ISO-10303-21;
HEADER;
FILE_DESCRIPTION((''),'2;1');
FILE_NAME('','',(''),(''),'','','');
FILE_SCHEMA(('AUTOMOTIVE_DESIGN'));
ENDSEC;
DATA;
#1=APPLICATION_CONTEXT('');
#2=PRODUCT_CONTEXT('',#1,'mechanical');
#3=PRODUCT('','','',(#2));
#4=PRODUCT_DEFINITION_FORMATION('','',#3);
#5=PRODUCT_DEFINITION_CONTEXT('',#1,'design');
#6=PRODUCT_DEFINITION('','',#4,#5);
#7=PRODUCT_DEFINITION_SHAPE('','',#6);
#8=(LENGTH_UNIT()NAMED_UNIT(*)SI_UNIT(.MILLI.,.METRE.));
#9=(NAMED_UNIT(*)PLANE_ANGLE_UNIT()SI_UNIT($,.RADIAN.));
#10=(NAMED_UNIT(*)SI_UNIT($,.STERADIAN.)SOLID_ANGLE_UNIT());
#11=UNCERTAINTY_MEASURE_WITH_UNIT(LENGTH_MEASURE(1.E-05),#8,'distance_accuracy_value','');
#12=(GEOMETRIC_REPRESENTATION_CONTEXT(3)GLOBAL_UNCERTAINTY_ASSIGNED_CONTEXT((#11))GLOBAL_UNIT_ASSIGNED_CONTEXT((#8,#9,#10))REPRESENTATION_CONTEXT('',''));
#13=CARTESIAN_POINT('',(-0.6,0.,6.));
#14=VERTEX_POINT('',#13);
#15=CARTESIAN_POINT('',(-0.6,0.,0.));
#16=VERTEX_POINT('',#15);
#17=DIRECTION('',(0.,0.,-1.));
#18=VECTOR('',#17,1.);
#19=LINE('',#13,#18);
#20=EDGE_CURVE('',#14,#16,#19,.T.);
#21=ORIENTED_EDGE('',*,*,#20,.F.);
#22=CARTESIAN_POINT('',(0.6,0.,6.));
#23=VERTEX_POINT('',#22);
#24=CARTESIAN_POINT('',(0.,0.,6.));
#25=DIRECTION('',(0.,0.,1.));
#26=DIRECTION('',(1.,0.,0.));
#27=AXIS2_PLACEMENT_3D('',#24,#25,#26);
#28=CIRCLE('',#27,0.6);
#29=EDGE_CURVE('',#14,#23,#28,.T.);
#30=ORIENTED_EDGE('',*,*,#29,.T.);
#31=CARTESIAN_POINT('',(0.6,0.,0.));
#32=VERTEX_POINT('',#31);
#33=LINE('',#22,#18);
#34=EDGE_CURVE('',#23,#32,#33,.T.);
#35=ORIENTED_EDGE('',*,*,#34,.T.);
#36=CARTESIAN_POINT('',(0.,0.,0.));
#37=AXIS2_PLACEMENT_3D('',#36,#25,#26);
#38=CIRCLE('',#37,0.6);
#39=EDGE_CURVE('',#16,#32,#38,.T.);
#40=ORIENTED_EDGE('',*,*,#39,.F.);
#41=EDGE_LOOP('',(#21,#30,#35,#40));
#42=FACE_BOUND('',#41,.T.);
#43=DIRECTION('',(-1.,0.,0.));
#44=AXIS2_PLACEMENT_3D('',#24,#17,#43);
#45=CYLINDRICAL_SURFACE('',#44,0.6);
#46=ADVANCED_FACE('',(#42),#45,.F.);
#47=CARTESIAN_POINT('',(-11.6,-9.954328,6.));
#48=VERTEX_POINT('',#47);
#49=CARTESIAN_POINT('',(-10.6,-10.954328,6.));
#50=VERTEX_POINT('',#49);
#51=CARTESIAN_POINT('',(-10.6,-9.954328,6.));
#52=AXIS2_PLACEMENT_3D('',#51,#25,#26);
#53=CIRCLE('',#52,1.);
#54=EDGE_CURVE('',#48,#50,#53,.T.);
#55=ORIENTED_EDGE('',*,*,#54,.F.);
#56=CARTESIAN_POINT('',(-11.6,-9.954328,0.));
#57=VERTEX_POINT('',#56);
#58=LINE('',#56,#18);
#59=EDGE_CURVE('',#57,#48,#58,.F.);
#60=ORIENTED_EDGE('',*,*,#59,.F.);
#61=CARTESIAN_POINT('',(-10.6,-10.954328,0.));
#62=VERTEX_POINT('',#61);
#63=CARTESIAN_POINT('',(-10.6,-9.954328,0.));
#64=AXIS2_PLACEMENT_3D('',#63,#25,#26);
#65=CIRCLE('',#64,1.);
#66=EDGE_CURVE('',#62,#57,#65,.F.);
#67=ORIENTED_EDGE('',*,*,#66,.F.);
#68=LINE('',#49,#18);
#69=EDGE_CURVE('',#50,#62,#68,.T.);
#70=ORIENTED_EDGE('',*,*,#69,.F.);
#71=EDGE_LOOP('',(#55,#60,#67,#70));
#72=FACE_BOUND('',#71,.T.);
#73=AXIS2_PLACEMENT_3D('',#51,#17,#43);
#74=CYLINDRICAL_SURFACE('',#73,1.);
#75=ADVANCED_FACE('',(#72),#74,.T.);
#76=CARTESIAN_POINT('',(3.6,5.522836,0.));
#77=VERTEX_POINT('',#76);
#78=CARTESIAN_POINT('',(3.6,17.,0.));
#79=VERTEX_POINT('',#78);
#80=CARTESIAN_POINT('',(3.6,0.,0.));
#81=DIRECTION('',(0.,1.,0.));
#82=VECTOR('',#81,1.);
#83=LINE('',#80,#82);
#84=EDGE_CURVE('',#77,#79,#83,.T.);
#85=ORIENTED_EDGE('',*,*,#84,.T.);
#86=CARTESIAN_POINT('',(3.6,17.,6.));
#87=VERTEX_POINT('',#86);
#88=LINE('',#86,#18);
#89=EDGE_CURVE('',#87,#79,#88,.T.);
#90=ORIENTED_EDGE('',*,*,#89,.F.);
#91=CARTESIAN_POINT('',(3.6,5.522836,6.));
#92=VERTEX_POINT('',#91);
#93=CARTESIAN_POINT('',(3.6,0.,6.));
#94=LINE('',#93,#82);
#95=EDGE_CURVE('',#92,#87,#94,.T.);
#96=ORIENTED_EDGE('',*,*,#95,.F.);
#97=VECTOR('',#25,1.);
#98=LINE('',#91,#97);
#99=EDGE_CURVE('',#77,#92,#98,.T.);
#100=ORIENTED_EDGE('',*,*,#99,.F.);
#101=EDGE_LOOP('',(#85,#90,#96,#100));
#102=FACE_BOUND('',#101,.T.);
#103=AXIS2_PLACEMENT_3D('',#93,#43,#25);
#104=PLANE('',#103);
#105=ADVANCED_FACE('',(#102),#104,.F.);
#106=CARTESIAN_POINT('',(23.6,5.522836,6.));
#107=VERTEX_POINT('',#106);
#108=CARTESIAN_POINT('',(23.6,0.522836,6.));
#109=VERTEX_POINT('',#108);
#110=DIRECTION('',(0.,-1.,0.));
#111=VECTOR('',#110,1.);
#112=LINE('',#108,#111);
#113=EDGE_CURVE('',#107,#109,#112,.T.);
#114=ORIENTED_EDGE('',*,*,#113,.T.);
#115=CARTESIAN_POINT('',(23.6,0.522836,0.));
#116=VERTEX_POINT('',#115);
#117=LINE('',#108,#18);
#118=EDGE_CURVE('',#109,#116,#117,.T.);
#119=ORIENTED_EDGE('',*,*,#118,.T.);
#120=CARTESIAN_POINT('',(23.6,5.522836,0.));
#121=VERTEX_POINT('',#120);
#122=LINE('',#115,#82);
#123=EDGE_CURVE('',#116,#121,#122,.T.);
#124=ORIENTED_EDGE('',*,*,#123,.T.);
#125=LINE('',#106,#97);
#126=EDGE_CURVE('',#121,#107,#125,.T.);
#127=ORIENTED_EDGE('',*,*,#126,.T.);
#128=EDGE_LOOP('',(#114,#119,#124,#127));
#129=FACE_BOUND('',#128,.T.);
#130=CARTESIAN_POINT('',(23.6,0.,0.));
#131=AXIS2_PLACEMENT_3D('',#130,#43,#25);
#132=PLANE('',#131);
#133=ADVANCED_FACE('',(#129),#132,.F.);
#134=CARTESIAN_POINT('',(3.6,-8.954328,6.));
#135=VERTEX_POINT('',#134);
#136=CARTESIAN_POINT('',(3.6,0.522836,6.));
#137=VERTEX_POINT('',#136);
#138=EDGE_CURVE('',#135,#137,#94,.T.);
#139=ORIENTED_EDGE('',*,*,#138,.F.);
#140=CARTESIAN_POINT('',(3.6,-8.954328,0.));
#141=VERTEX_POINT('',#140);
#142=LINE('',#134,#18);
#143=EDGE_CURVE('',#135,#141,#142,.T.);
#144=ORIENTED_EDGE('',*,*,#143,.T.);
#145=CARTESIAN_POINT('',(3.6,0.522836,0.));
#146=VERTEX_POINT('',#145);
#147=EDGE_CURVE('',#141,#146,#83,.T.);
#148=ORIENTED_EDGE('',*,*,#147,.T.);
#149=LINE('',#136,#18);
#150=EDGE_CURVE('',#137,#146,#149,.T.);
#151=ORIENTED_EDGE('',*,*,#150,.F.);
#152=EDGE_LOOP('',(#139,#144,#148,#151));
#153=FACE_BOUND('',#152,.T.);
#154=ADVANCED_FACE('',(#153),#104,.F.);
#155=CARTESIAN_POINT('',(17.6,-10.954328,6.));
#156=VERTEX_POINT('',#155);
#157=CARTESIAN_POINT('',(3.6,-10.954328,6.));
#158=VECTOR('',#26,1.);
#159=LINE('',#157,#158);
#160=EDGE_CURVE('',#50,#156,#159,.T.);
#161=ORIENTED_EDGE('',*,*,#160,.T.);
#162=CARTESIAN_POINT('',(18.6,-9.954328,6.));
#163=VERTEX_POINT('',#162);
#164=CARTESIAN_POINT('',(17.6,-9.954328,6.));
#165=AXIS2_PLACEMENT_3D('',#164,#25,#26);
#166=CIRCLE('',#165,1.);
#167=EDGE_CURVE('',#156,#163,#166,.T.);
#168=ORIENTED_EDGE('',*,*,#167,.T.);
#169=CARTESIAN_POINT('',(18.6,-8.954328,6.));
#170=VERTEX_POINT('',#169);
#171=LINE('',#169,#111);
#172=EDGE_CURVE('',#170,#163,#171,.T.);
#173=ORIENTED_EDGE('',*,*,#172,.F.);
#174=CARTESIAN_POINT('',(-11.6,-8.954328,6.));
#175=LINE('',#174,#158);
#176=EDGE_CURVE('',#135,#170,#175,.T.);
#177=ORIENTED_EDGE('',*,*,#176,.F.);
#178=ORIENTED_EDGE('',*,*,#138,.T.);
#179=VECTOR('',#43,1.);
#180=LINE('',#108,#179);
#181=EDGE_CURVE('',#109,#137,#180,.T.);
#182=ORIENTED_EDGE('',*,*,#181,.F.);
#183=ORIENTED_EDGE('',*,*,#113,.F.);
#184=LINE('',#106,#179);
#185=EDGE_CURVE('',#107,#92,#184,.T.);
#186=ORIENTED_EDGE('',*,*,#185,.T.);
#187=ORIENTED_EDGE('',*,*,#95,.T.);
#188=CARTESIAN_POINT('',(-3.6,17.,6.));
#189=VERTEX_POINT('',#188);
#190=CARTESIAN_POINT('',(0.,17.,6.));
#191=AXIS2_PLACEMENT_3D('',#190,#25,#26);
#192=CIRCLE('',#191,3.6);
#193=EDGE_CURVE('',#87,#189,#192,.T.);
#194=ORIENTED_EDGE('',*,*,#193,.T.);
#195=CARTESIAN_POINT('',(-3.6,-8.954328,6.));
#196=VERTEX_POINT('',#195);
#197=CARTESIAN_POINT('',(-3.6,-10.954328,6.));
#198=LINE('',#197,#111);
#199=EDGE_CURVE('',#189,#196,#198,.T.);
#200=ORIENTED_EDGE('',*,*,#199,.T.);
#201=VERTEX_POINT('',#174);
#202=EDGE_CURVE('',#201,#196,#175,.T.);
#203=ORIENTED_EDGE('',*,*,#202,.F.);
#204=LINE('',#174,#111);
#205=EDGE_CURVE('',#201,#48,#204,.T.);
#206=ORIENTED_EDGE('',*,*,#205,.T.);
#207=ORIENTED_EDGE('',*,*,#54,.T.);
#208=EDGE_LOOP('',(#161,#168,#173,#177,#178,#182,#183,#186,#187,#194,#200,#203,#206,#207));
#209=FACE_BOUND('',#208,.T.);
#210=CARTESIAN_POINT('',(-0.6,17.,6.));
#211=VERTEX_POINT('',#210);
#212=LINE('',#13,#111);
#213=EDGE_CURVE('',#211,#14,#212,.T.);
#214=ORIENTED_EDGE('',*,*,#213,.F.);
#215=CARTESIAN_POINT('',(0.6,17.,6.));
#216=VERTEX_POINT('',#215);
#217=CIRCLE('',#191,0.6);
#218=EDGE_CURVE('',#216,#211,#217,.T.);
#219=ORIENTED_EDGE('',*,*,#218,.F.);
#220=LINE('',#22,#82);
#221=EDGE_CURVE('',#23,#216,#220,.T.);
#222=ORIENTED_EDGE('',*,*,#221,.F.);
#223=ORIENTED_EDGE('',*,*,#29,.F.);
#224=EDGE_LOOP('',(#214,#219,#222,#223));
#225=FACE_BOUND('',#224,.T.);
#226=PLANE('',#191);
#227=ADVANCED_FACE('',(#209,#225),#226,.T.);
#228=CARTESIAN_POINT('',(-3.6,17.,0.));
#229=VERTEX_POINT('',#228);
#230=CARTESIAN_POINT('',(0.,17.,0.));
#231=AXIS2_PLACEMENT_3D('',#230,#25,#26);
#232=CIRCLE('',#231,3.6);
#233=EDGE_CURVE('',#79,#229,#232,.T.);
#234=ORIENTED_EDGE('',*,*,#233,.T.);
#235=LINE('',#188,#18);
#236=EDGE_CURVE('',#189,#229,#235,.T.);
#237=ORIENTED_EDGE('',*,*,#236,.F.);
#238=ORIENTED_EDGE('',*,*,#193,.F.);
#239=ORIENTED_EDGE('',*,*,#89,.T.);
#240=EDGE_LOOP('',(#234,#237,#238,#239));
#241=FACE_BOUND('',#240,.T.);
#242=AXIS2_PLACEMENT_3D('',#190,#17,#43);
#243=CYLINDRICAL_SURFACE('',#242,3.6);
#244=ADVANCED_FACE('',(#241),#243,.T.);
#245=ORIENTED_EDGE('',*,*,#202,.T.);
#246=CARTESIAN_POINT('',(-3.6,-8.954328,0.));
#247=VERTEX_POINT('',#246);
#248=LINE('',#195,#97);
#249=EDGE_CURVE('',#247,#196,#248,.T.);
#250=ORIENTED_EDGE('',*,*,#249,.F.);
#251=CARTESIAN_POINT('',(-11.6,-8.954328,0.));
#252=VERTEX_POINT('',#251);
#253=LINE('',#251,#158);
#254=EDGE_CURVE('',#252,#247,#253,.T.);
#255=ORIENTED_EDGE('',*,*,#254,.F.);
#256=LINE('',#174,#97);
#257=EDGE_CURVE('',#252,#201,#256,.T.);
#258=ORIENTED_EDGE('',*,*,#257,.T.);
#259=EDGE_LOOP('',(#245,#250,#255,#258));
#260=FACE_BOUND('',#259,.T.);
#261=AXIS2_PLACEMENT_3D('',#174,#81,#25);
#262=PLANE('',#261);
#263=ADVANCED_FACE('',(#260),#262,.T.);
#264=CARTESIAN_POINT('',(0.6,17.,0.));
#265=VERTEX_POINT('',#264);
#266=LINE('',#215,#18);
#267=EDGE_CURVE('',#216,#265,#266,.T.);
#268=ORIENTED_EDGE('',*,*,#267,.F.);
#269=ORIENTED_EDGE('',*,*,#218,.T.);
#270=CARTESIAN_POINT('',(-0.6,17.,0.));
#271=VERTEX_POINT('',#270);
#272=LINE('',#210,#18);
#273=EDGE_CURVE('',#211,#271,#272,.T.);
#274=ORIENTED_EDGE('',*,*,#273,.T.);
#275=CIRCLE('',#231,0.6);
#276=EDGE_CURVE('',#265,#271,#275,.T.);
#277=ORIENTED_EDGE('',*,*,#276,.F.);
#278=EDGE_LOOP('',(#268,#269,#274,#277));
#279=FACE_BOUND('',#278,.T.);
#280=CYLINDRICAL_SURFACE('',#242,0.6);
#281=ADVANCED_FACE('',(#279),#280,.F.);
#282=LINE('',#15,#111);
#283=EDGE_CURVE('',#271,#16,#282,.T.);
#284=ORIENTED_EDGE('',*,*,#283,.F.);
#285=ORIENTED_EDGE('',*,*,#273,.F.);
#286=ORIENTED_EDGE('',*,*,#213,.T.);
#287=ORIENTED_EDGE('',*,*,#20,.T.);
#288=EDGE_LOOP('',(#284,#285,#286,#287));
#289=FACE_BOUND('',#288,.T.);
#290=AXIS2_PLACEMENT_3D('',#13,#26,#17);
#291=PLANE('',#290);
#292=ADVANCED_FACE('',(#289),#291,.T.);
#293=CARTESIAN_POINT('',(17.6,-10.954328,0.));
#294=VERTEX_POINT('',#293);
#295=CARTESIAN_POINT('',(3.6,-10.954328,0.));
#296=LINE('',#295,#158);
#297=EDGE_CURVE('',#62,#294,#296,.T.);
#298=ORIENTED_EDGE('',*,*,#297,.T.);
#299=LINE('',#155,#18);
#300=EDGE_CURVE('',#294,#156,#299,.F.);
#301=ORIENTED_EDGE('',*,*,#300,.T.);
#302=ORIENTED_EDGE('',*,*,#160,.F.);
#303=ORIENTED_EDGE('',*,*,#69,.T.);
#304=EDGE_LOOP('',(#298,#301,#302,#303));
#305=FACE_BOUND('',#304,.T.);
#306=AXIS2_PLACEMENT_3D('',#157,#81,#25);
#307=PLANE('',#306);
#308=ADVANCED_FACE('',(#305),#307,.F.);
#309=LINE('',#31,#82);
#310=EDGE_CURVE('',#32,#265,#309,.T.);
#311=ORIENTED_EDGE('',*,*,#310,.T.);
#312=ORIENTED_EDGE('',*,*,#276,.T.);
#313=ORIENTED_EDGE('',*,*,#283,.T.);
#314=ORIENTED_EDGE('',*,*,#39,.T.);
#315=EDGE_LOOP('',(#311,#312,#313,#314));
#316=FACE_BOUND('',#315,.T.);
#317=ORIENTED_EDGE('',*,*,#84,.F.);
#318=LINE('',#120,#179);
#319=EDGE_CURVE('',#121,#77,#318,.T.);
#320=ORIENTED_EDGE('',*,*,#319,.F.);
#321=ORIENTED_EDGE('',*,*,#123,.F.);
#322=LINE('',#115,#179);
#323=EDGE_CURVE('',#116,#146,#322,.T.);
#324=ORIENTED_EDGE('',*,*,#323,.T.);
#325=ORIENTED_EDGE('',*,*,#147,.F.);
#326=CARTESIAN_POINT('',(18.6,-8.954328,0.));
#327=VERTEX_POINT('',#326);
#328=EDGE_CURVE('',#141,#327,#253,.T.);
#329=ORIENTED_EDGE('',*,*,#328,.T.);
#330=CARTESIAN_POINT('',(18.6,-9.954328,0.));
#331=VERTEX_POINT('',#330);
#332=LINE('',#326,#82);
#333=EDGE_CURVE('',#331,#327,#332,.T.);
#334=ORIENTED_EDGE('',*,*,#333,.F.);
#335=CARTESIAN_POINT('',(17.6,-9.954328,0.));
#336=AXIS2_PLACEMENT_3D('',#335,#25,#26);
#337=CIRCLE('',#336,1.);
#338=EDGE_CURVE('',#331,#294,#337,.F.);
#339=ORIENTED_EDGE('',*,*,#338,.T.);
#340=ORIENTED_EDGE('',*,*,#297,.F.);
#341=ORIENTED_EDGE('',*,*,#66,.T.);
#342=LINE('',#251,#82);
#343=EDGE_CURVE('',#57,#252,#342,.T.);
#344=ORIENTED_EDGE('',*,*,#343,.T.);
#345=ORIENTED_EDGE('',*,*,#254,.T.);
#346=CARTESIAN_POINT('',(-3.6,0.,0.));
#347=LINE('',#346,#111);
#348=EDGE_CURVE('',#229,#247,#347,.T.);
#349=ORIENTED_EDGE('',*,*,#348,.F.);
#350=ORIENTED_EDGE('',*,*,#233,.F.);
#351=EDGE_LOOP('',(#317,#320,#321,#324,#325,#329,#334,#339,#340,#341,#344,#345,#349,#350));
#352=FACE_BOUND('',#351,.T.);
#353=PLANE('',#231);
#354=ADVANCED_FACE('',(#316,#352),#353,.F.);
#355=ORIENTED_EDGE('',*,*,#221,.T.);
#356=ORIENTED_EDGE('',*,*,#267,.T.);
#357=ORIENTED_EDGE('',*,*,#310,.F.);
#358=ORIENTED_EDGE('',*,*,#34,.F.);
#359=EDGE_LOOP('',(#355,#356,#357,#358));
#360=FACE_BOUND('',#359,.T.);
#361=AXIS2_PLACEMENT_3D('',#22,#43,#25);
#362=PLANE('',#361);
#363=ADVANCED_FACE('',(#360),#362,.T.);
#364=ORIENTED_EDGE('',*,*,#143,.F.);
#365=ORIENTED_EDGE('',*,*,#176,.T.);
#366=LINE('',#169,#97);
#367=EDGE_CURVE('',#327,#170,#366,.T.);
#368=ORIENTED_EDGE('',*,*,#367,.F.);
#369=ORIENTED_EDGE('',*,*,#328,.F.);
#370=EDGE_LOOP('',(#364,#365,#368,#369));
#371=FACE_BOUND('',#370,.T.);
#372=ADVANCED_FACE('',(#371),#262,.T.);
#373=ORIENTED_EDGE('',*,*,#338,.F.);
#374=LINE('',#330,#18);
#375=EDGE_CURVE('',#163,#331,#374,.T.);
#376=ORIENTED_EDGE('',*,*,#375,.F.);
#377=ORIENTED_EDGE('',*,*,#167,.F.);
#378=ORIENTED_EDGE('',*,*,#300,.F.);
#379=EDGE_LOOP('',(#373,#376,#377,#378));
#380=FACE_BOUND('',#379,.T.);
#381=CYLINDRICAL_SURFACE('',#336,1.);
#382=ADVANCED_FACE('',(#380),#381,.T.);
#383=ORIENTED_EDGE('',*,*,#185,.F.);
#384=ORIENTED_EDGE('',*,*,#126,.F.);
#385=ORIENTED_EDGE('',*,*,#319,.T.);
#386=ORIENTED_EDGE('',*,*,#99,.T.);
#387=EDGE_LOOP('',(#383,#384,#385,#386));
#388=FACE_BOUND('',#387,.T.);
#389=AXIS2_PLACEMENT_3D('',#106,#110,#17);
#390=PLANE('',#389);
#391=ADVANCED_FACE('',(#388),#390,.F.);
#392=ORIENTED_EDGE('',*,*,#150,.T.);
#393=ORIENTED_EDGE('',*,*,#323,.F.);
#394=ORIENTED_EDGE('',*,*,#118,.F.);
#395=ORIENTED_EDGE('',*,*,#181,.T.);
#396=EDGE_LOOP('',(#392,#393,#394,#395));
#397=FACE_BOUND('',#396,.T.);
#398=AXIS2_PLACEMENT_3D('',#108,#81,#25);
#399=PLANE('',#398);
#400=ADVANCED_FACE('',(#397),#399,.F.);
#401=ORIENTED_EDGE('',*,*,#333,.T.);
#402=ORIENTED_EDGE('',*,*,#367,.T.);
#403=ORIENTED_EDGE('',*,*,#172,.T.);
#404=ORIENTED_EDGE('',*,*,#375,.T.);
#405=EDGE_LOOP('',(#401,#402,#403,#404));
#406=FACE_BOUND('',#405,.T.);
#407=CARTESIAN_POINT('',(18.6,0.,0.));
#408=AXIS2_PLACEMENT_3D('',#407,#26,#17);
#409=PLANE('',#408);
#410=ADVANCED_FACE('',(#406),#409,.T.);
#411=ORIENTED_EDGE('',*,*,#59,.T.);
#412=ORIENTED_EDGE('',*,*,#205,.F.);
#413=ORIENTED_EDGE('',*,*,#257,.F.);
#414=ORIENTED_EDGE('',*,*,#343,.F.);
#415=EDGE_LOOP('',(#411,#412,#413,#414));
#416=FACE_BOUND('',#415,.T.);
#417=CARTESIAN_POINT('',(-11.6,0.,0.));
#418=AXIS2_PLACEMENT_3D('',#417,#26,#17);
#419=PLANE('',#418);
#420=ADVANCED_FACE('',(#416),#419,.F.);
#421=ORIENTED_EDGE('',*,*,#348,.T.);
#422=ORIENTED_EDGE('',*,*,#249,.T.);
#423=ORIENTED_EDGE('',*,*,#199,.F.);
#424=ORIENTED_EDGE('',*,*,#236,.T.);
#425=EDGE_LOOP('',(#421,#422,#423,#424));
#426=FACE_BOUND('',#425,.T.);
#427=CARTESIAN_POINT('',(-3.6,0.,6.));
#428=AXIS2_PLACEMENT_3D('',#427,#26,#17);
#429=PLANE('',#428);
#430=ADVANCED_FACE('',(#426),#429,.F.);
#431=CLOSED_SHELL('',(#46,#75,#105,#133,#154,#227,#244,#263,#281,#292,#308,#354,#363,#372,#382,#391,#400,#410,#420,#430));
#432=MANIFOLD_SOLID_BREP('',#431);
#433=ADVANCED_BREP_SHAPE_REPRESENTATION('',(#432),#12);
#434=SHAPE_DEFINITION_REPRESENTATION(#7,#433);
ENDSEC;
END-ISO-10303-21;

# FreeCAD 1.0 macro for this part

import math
import FreeCAD as App
import Part
import Sketcher

V = App.Vector


def edges_at(feature, points):
    """Names of the edges that pass closest to the given points."""
    edges = feature.Shape.Edges
    near = lambda p: min(range(len(edges)), key=lambda i: edges[i].distToShape(Part.Vertex(*p))[0])
    return sorted({f"Edge{near(p) + 1}" for p in points})


def add_polygon(sketch, points):
    """Adds a closed chain of lines whose ends are joined by coincident constraints."""
    first, n = sketch.GeometryCount, len(points)
    for a, b in zip(points, points[1:] + points[:1]):
        sketch.addGeometry(Part.LineSegment(App.Vector(*a, 0), App.Vector(*b, 0)), False)
    for i in range(n):
        sketch.addConstraint(Sketcher.Constraint("Coincident", first + i, 2, first + (i + 1) % n, 1))

doc = App.newDocument("Part")
params = doc.addObject("Spreadsheet::Sheet", "Params")
for row, (alias, value) in enumerate([
    ("sketch1_radius", "3.6 mm"),
    ("sketch1_radius2", "0.6 mm"),
    ("sketch1_height", "17 mm"),
    ("pad1_length", "6 mm"),
    ("sketch2_width", "5 mm"),
    ("sketch2_height", "6 mm"),
    ("pad2_length", "20 mm"),
    ("sketch3_width", "2 mm"),
    ("sketch3_height", "6 mm"),
    ("pad3_length", "15 mm"),
    ("pad3_length2", "15.2 mm"),
    ("fillet_radius", "1 mm"),
], start=1):
    params.set(f"A{row}", alias)
    params.set(f"B{row}", "=" + value)
    params.setAlias(f"B{row}", alias)

body = doc.addObject("PartDesign::Body", "Body")

# Sketch on XY plane
sketch1 = doc.addObject("Sketcher::SketchObject", "Sketch")
body.addObject(sketch1)
sketch1.AttachmentSupport = (doc.XY_Plane, [""])
sketch1.MapMode = "FlatFace"
sketch1.addGeometry([
    Part.ArcOfCircle(Part.Circle(V(0, 17, 0), V(0, 0, 1), 3.6), math.radians(0), math.radians(180)),  # 0
    Part.LineSegment(V(-3.6, 17, 0), V(-3.6, -11, 0)),  # 1
    Part.LineSegment(V(-3.6, -11, 0), V(3.6, -11, 0)),  # 2
    Part.LineSegment(V(3.6, -11, 0), V(3.6, 17, 0)),  # 3
    Part.LineSegment(V(-0.6, 0, 0), V(-0.6, 17, 0)),  # 4
    Part.ArcOfCircle(Part.Circle(V(0, 17, 0), V(0, 0, 1), 0.6), math.radians(0), math.radians(180)),  # 5
    Part.LineSegment(V(0.6, 17, 0), V(0.6, 0, 0)),  # 6
    Part.ArcOfCircle(Part.Circle(V(0, 0, 0), V(0, 0, 1), 0.6), math.radians(180), math.radians(360)),  # 7
], False)
sketch1.addConstraint([
    Sketcher.Constraint("Tangent", 0, 2, 1, 1),
    Sketcher.Constraint("Coincident", 1, 2, 2, 1),
    Sketcher.Constraint("Coincident", 2, 2, 3, 1),
    Sketcher.Constraint("Tangent", 3, 2, 0, 1),
    Sketcher.Constraint("Tangent", 4, 2, 5, 2),
    Sketcher.Constraint("Tangent", 5, 1, 6, 1),
    Sketcher.Constraint("Tangent", 6, 2, 7, 2),
    Sketcher.Constraint("Tangent", 7, 1, 4, 1),
    Sketcher.Constraint("Vertical", 1),
    Sketcher.Constraint("Horizontal", 2),
    Sketcher.Constraint("Vertical", 3),
    Sketcher.Constraint("Vertical", 4),
    Sketcher.Constraint("Vertical", 6),
    Sketcher.Constraint("Coincident", 7, 3, -1, 1),
    Sketcher.Constraint("Coincident", 5, 3, 0, 3),
    Sketcher.Constraint("Radius", 0, 3.6),
    Sketcher.Constraint("Radius", 5, 0.6),
    Sketcher.Constraint("DistanceY", 4, 1, 4, 2, 17.0),
    Sketcher.Constraint("DistanceY", 1, 2, 1, 1, 27.954328),
])
sketch1.setExpression("Constraints[15]", "Params.sketch1_radius")
sketch1.setExpression("Constraints[16]", "Params.sketch1_radius2")
sketch1.setExpression("Constraints[17]", "Params.sketch1_height")
pad1 = doc.addObject("PartDesign::Pad", "Pad")
body.addObject(pad1)
pad1.Profile = sketch1
pad1.setExpression("Length", "Params.pad1_length")

# Sketch on YZ plane
sketch2 = doc.addObject("Sketcher::SketchObject", "Sketch001")
body.addObject(sketch2)
sketch2.AttachmentSupport = (doc.YZ_Plane, [""])
sketch2.MapMode = "FlatFace"
sketch2.AttachmentOffset = App.Placement(V(0, 0, 3.6), App.Rotation())
add_polygon(sketch2, [(6, 6), (1, 6), (1, 0), (6, 0)])  # lines 0-3
sketch2.addConstraint([
    Sketcher.Constraint("Horizontal", 0),
    Sketcher.Constraint("Vertical", 1),
    Sketcher.Constraint("Horizontal", 2),
    Sketcher.Constraint("Vertical", 3),
    Sketcher.Constraint("PointOnObject", 1, 2, -1),
    Sketcher.Constraint("DistanceX", 0, 2, 0, 1, 5.0),
    Sketcher.Constraint("DistanceY", 1, 2, 1, 1, 6.0),
    Sketcher.Constraint("DistanceX", -1, 1, 0, 2, 0.522836),
])
sketch2.setExpression("Constraints[9]", "Params.sketch2_width")
sketch2.setExpression("Constraints[10]", "Params.sketch2_height")
pad2 = doc.addObject("PartDesign::Pad", "Pad001")
body.addObject(pad2)
pad2.Profile = sketch2
pad2.setExpression("Length", "Params.pad2_length")

# Sketch on YZ plane
sketch3 = doc.addObject("Sketcher::SketchObject", "Sketch002")
body.addObject(sketch3)
sketch3.AttachmentSupport = (doc.YZ_Plane, [""])
sketch3.MapMode = "FlatFace"
sketch3.AttachmentOffset = App.Placement(V(0, 0, 3.6), App.Rotation())
add_polygon(sketch3, [(-9, 6), (-11, 6), (-11, 0), (-9, 0)])  # lines 0-3
sketch3.addConstraint([
    Sketcher.Constraint("Horizontal", 0),
    Sketcher.Constraint("Vertical", 1),
    Sketcher.Constraint("Horizontal", 2),
    Sketcher.Constraint("Vertical", 3),
    Sketcher.Constraint("PointOnObject", 1, 2, -1),
    Sketcher.Constraint("DistanceX", 0, 2, 0, 1, 2.0),
    Sketcher.Constraint("DistanceY", 1, 2, 1, 1, 6.0),
    Sketcher.Constraint("DistanceX", 0, 2, -1, 1, 10.954328),
])
sketch3.setExpression("Constraints[9]", "Params.sketch3_width")
sketch3.setExpression("Constraints[10]", "Params.sketch3_height")
pad3 = doc.addObject("PartDesign::Pad", "Pad002")
body.addObject(pad3)
pad3.Profile = sketch3
pad3.Type = "TwoLengths"
pad3.setExpression("Length", "Params.pad3_length")
pad3.setExpression("Length2", "Params.pad3_length2")
doc.recompute()

fillet = doc.addObject("PartDesign::Fillet", "Fillet")
body.addObject(fillet)
fillet.Base = (pad3, edges_at(pad3, [(-11.6, -10.954, 3), (18.6, -10.954, 3)]))
fillet.setExpression("Radius", "Params.fillet_radius")

doc.recompute()
